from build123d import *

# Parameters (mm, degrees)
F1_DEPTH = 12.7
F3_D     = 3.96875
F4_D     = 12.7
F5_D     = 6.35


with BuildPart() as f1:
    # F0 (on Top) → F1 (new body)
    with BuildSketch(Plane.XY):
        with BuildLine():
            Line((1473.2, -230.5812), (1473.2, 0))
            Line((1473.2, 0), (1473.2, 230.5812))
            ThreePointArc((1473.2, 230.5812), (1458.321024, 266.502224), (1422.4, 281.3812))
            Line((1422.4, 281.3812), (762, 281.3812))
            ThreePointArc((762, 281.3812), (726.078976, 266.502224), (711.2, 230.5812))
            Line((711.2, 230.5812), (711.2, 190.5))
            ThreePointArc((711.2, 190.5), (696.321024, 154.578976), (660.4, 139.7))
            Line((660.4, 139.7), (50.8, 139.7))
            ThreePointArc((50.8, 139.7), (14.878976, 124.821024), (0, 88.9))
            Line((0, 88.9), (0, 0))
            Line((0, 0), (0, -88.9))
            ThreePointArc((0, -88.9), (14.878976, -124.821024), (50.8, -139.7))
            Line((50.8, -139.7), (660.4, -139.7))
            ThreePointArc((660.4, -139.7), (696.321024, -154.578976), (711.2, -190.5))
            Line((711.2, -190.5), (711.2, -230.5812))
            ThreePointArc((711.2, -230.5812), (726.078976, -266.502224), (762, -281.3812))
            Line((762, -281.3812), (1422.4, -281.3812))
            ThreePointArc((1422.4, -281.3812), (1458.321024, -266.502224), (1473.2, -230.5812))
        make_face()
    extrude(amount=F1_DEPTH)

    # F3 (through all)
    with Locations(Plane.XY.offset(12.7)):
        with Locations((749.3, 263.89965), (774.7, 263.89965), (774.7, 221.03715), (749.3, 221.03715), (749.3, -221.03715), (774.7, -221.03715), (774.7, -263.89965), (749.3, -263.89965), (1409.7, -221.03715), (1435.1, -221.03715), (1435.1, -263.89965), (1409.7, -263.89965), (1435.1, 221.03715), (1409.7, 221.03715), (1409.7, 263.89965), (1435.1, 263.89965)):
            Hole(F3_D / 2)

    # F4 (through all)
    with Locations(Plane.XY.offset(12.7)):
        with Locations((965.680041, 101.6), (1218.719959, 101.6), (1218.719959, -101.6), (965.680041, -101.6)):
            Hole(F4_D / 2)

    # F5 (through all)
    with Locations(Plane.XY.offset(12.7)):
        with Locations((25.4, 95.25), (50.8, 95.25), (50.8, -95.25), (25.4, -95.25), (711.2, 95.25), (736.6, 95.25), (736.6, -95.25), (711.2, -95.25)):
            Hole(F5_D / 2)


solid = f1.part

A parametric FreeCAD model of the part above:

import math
import FreeCAD as App
import Part
import Sketcher
Q = App.Units.Quantity

doc = App.newDocument("Part")
body = doc.addObject("PartDesign::Body", "Body")

# Sketch on XY plane
sketch1 = body.newObject("Sketcher::SketchObject", "Sketch")
sketch1.AttachmentSupport = (doc.getObject("XY_Plane"), [""])
sketch1.MapMode = "FlatFace"
sketch1.addGeometry(Part.LineSegment(App.Vector(1473, -231, 0), App.Vector(1473, 231, 0)), False)
sketch1.addGeometry(Part.ArcOfCircle(Part.Circle(App.Vector(1422, 231, 0), App.Vector(0, 0, 1), 51), math.radians(0), math.radians(90)), False)
sketch1.addGeometry(Part.LineSegment(App.Vector(1422, 281, 0), App.Vector(762, 281, 0)), False)
sketch1.addGeometry(Part.ArcOfCircle(Part.Circle(App.Vector(762, 231, 0), App.Vector(0, 0, 1), 51), math.radians(90), math.radians(180)), False)
sketch1.addGeometry(Part.LineSegment(App.Vector(711, 231, 0), App.Vector(711, 190, 0)), False)
sketch1.addGeometry(Part.ArcOfCircle(Part.Circle(App.Vector(660, 191, 0), App.Vector(0, 0, 1), 51), math.radians(-90), math.radians(0)), False)
sketch1.addGeometry(Part.LineSegment(App.Vector(660, 140, 0), App.Vector(51, 140, 0)), False)
sketch1.addGeometry(Part.ArcOfCircle(Part.Circle(App.Vector(51, 89, 0), App.Vector(0, 0, 1), 51), math.radians(90), math.radians(180)), False)
sketch1.addGeometry(Part.LineSegment(App.Vector(0, 89, 0), App.Vector(0, -89, 0)), False)
sketch1.addGeometry(Part.ArcOfCircle(Part.Circle(App.Vector(51, -89, 0), App.Vector(0, 0, 1), 51), math.radians(-180), math.radians(-90)), False)
sketch1.addGeometry(Part.LineSegment(App.Vector(51, -140, 0), App.Vector(660, -140, 0)), False)
sketch1.addGeometry(Part.ArcOfCircle(Part.Circle(App.Vector(660, -191, 0), App.Vector(0, 0, 1), 51), math.radians(0), math.radians(90)), False)
sketch1.addGeometry(Part.LineSegment(App.Vector(711, -190, 0), App.Vector(711, -231, 0)), False)
sketch1.addGeometry(Part.ArcOfCircle(Part.Circle(App.Vector(762, -231, 0), App.Vector(0, 0, 1), 51), math.radians(-180), math.radians(-90)), False)
sketch1.addGeometry(Part.LineSegment(App.Vector(762, -281, 0), App.Vector(1422, -281, 0)), False)
sketch1.addGeometry(Part.ArcOfCircle(Part.Circle(App.Vector(1422, -231, 0), App.Vector(0, 0, 1), 51), math.radians(-90), math.radians(0)), False)
sketch1.addConstraint(Sketcher.Constraint("Tangent", 0, 2, 1, 1))
sketch1.addConstraint(Sketcher.Constraint("Tangent", 1, 2, 2, 1))
sketch1.addConstraint(Sketcher.Constraint("Tangent", 2, 2, 3, 1))
sketch1.addConstraint(Sketcher.Constraint("Tangent", 3, 2, 4, 1))
sketch1.addConstraint(Sketcher.Constraint("Tangent", 4, 2, 5, 2))
sketch1.addConstraint(Sketcher.Constraint("Tangent", 5, 1, 6, 1))
sketch1.addConstraint(Sketcher.Constraint("Tangent", 6, 2, 7, 1))
sketch1.addConstraint(Sketcher.Constraint("Tangent", 7, 2, 8, 1))
sketch1.addConstraint(Sketcher.Constraint("Tangent", 8, 2, 9, 1))
sketch1.addConstraint(Sketcher.Constraint("Tangent", 9, 2, 10, 1))
sketch1.addConstraint(Sketcher.Constraint("Tangent", 10, 2, 11, 2))
sketch1.addConstraint(Sketcher.Constraint("Tangent", 11, 1, 12, 1))
sketch1.addConstraint(Sketcher.Constraint("Tangent", 12, 2, 13, 1))
sketch1.addConstraint(Sketcher.Constraint("Tangent", 13, 2, 14, 1))
sketch1.addConstraint(Sketcher.Constraint("Tangent", 14, 2, 15, 1))
sketch1.addConstraint(Sketcher.Constraint("Tangent", 15, 2, 0, 1))
sketch1.addConstraint(Sketcher.Constraint("Vertical", 0))
sketch1.addConstraint(Sketcher.Constraint("Horizontal", 2))
sketch1.addConstraint(Sketcher.Constraint("Vertical", 4))
sketch1.addConstraint(Sketcher.Constraint("Horizontal", 6))
sketch1.addConstraint(Sketcher.Constraint("Vertical", 8))
sketch1.addConstraint(Sketcher.Constraint("Horizontal", 10))
sketch1.addConstraint(Sketcher.Constraint("Vertical", 12))
sketch1.addConstraint(Sketcher.Constraint("Horizontal", 14))
sketch1.addConstraint(Sketcher.Constraint("Equal", 1, 3))
sketch1.addConstraint(Sketcher.Constraint("Equal", 3, 5))
sketch1.addConstraint(Sketcher.Constraint("Equal", 5, 7))
sketch1.addConstraint(Sketcher.Constraint("Equal", 7, 9))
sketch1.addConstraint(Sketcher.Constraint("Equal", 9, 11))
sketch1.addConstraint(Sketcher.Constraint("Equal", 11, 13))
sketch1.addConstraint(Sketcher.Constraint("Equal", 13, 15))
sketch1.addConstraint(Sketcher.Constraint("Symmetric", 7, 2, 8, 2, -1, 1))
sketch1.addConstraint(Sketcher.Constraint("Symmetric", 3, 3, 13, 3, -1))
sketch1.addConstraint(Sketcher.Constraint("Radius", 1, Q("2.0000001 in")))
sketch1.addConstraint(Sketcher.Constraint("DistanceX", 2, 2, 2, 1, Q("26 in")))
sketch1.addConstraint(Sketcher.Constraint("DistanceX", 6, 2, 6, 1, Q("24 in")))
sketch1.addConstraint(Sketcher.Constraint("DistanceY", 8, 2, 8, 1, Q("7 in")))
sketch1.addConstraint(Sketcher.Constraint("DistanceY", 0, 1, 0, 2, Q("18.156 in")))
pad1 = body.newObject("PartDesign::Pad", "Pad")
pad1.Profile = sketch1
pad1.Length = Q("0.5 in")

# Sketch on XY plane
sketch2 = body.newObject("Sketcher::SketchObject", "Sketch001")
sketch2.AttachmentSupport = (doc.getObject("XY_Plane"), [""])
sketch2.MapMode = "FlatFace"
sketch2.AttachmentOffset = App.Placement(App.Vector(0, 0, 0.5 * 25.4), App.Rotation())
sketch2.addGeometry(Part.Circle(App.Vector(749.3, 263.9, 0), App.Vector(0, 0, 1), 2), False)
sketch2.addGeometry(Part.Circle(App.Vector(774.7, 263.9, 0), App.Vector(0, 0, 1), 2), False)
sketch2.addGeometry(Part.Circle(App.Vector(774.7, 221, 0), App.Vector(0, 0, 1), 2), False)
sketch2.addGeometry(Part.Circle(App.Vector(749.3, 221, 0), App.Vector(0, 0, 1), 2), False)
sketch2.addGeometry(Part.Circle(App.Vector(749.3, -221, 0), App.Vector(0, 0, 1), 2), False)
sketch2.addGeometry(Part.Circle(App.Vector(774.7, -221, 0), App.Vector(0, 0, 1), 2), False)
sketch2.addGeometry(Part.Circle(App.Vector(774.7, -263.9, 0), App.Vector(0, 0, 1), 2), False)
sketch2.addGeometry(Part.Circle(App.Vector(749.3, -263.9, 0), App.Vector(0, 0, 1), 2), False)
sketch2.addGeometry(Part.Circle(App.Vector(1409.7, -221, 0), App.Vector(0, 0, 1), 2), False)
sketch2.addGeometry(Part.Circle(App.Vector(1435.1, -221, 0), App.Vector(0, 0, 1), 2), False)
sketch2.addGeometry(Part.Circle(App.Vector(1435.1, -263.9, 0), App.Vector(0, 0, 1), 2), False)
sketch2.addGeometry(Part.Circle(App.Vector(1409.7, -263.9, 0), App.Vector(0, 0, 1), 2), False)
sketch2.addGeometry(Part.Circle(App.Vector(1435.1, 221, 0), App.Vector(0, 0, 1), 2), False)
sketch2.addGeometry(Part.Circle(App.Vector(1409.7, 221, 0), App.Vector(0, 0, 1), 2), False)
sketch2.addGeometry(Part.Circle(App.Vector(1409.7, 263.9, 0), App.Vector(0, 0, 1), 2), False)
sketch2.addGeometry(Part.Circle(App.Vector(1435.1, 263.9, 0), App.Vector(0, 0, 1), 2), False)
sketch2.addConstraint(Sketcher.Constraint("Equal", 0, 1))
sketch2.addConstraint(Sketcher.Constraint("Equal", 1, 2))
sketch2.addConstraint(Sketcher.Constraint("Equal", 2, 3))
sketch2.addConstraint(Sketcher.Constraint("Equal", 3, 4))
sketch2.addConstraint(Sketcher.Constraint("Equal", 4, 5))
sketch2.addConstraint(Sketcher.Constraint("Equal", 5, 6))
sketch2.addConstraint(Sketcher.Constraint("Equal", 6, 7))
sketch2.addConstraint(Sketcher.Constraint("Equal", 7, 8))
sketch2.addConstraint(Sketcher.Constraint("Equal", 8, 9))
sketch2.addConstraint(Sketcher.Constraint("Equal", 9, 10))
sketch2.addConstraint(Sketcher.Constraint("Equal", 10, 11))
sketch2.addConstraint(Sketcher.Constraint("Equal", 11, 12))
sketch2.addConstraint(Sketcher.Constraint("Equal", 12, 13))
sketch2.addConstraint(Sketcher.Constraint("Equal", 13, 14))
sketch2.addConstraint(Sketcher.Constraint("Equal", 14, 15))
sketch2.addConstraint(Sketcher.Constraint("Symmetric", 3, 3, 4, 3, -1))
sketch2.addConstraint(Sketcher.Constraint("Symmetric", 2, 3, 5, 3, -1))
sketch2.addConstraint(Sketcher.Constraint("Symmetric", 1, 3, 6, 3, -1))
sketch2.addConstraint(Sketcher.Constraint("Symmetric", 0, 3, 7, 3, -1))
sketch2.addConstraint(Sketcher.Constraint("Symmetric", 9, 3, 12, 3, -1))
sketch2.addConstraint(Sketcher.Constraint("Symmetric", 8, 3, 13, 3, -1))
sketch2.addConstraint(Sketcher.Constraint("Symmetric", 11, 3, 14, 3, -1))
sketch2.addConstraint(Sketcher.Constraint("Symmetric", 10, 3, 15, 3, -1))
sketch2.addConstraint(Sketcher.Constraint("Horizontal", 0, 3, 1, 3))
sketch2.addConstraint(Sketcher.Constraint("Horizontal", 2, 3, 3, 3))
sketch2.addConstraint(Sketcher.Constraint("Horizontal", 5, 3, 8, 3))
sketch2.addConstraint(Sketcher.Constraint("Horizontal", 8, 3, 9, 3))
sketch2.addConstraint(Sketcher.Constraint("Horizontal", 7, 3, 10, 3))
sketch2.addConstraint(Sketcher.Constraint("Horizontal", 10, 3, 11, 3))
sketch2.addConstraint(Sketcher.Constraint("Vertical", 1, 3, 2, 3))
sketch2.addConstraint(Sketcher.Constraint("Vertical", 0, 3, 3, 3))
sketch2.addConstraint(Sketcher.Constraint("Vertical", 9, 3, 10, 3))
sketch2.addConstraint(Sketcher.Constraint("Vertical", 8, 3, 11, 3))
sketch2.addConstraint(Sketcher.Constraint("Diameter", 0, Q("0.15625 in")))
sketch2.addConstraint(Sketcher.Constraint("DistanceX", 0, 3, 1, 3, Q("1 in")))
sketch2.addConstraint(Sketcher.Constraint("DistanceX", 5, 3, 8, 3, Q("25 in")))
sketch2.addConstraint(Sketcher.Constraint("DistanceX", 8, 3, 9, 3, Q("1 in")))
sketch2.addConstraint(Sketcher.Constraint("DistanceX", -1, 1, 0, 3, Q("29.5 in")))
sketch2.addConstraint(Sketcher.Constraint("DistanceY", 2, 3, 1, 3, Q("1.6875 in")))
sketch2.addConstraint(Sketcher.Constraint("DistanceY", 4, 3, 0, 3, Q("19.092 in")))
doc.recompute()
hole = body.newObject("PartDesign::Hole", "Hole")
hole.Profile = sketch2
hole.ThreadType = "None"
hole.Diameter = Q("0.15625 in")
hole.DepthType = "ThroughAll"

# Sketch on XY plane
sketch3 = body.newObject("Sketcher::SketchObject", "Sketch002")
sketch3.AttachmentSupport = (doc.getObject("XY_Plane"), [""])
sketch3.MapMode = "FlatFace"
sketch3.AttachmentOffset = App.Placement(App.Vector(0, 0, 0.5 * 25.4), App.Rotation())
sketch3.addGeometry(Part.Circle(App.Vector(966, 102, 0), App.Vector(0, 0, 1), 6), False)
sketch3.addGeometry(Part.Circle(App.Vector(1219, 102, 0), App.Vector(0, 0, 1), 6), False)
sketch3.addGeometry(Part.Circle(App.Vector(1219, -102, 0), App.Vector(0, 0, 1), 6), False)
sketch3.addGeometry(Part.Circle(App.Vector(966, -102, 0), App.Vector(0, 0, 1), 6), False)
sketch3.addConstraint(Sketcher.Constraint("Equal", 0, 1))
sketch3.addConstraint(Sketcher.Constraint("Equal", 1, 2))
sketch3.addConstraint(Sketcher.Constraint("Equal", 2, 3))
sketch3.addConstraint(Sketcher.Constraint("Symmetric", 1, 3, 2, 3, -1))
sketch3.addConstraint(Sketcher.Constraint("Symmetric", 0, 3, 3, 3, -1))
sketch3.addConstraint(Sketcher.Constraint("Horizontal", 0, 3, 1, 3))
sketch3.addConstraint(Sketcher.Constraint("Diameter", 0, Q("0.5 in")))
sketch3.addConstraint(Sketcher.Constraint("DistanceY", -1, 1, 0, 3, Q("4 in")))
sketch3.addConstraint(Sketcher.Constraint("DistanceX", -1, 1, 0, 3, Q("965.680041 mm")))
sketch3.addConstraint(Sketcher.Constraint("DistanceX", -1, 1, 1, 3, Q("1218.719959 mm")))
doc.recompute()
hole2 = body.newObject("PartDesign::Hole", "Hole001")
hole2.Profile = sketch3
hole2.ThreadType = "None"
hole2.Diameter = Q("0.5 in")
hole2.DepthType = "ThroughAll"

# Sketch on XY plane
sketch4 = body.newObject("Sketcher::SketchObject", "Sketch003")
sketch4.AttachmentSupport = (doc.getObject("XY_Plane"), [""])
sketch4.MapMode = "FlatFace"
sketch4.AttachmentOffset = App.Placement(App.Vector(0, 0, 0.5 * 25.4), App.Rotation())
sketch4.addGeometry(Part.Circle(App.Vector(25.4, 95.2, 0), App.Vector(0, 0, 1), 3.2), False)
sketch4.addGeometry(Part.Circle(App.Vector(50.8, 95.2, 0), App.Vector(0, 0, 1), 3.2), False)
sketch4.addGeometry(Part.Circle(App.Vector(50.8, -95.2, 0), App.Vector(0, 0, 1), 3.2), False)
sketch4.addGeometry(Part.Circle(App.Vector(25.4, -95.2, 0), App.Vector(0, 0, 1), 3.2), False)
sketch4.addGeometry(Part.Circle(App.Vector(711.2, 95.2, 0), App.Vector(0, 0, 1), 3.2), False)
sketch4.addGeometry(Part.Circle(App.Vector(736.6, 95.2, 0), App.Vector(0, 0, 1), 3.2), False)
sketch4.addGeometry(Part.Circle(App.Vector(736.6, -95.2, 0), App.Vector(0, 0, 1), 3.2), False)
sketch4.addGeometry(Part.Circle(App.Vector(711.2, -95.2, 0), App.Vector(0, 0, 1), 3.2), False)
sketch4.addConstraint(Sketcher.Constraint("Equal", 0, 1))
sketch4.addConstraint(Sketcher.Constraint("Equal", 1, 2))
sketch4.addConstraint(Sketcher.Constraint("Equal", 2, 3))
sketch4.addConstraint(Sketcher.Constraint("Equal", 3, 4))
sketch4.addConstraint(Sketcher.Constraint("Equal", 4, 5))
sketch4.addConstraint(Sketcher.Constraint("Equal", 5, 6))
sketch4.addConstraint(Sketcher.Constraint("Equal", 6, 7))
sketch4.addConstraint(Sketcher.Constraint("Symmetric", 1, 3, 2, 3, -1))
sketch4.addConstraint(Sketcher.Constraint("Symmetric", 0, 3, 3, 3, -1))
sketch4.addConstraint(Sketcher.Constraint("Symmetric", 5, 3, 6, 3, -1))
sketch4.addConstraint(Sketcher.Constraint("Symmetric", 4, 3, 7, 3, -1))
sketch4.addConstraint(Sketcher.Constraint("Horizontal", 0, 3, 1, 3))
sketch4.addConstraint(Sketcher.Constraint("Horizontal", 1, 3, 4, 3))
sketch4.addConstraint(Sketcher.Constraint("Horizontal", 4, 3, 5, 3))
sketch4.addConstraint(Sketcher.Constraint("Diameter", 0, Q("0.25 in")))
sketch4.addConstraint(Sketcher.Constraint("DistanceX", -1, 1, 0, 3, Q("1 in")))
sketch4.addConstraint(Sketcher.Constraint("DistanceX", -1, 1, 1, 3, Q("2 in")))
sketch4.addConstraint(Sketcher.Constraint("DistanceX", -1, 1, 4, 3, Q("28 in")))
sketch4.addConstraint(Sketcher.Constraint("DistanceX", -1, 1, 5, 3, Q("29 in")))
sketch4.addConstraint(Sketcher.Constraint("DistanceY", 2, 3, 1, 3, Q("7.5 in")))
doc.recompute()
hole3 = body.newObject("PartDesign::Hole", "Hole002")
hole3.Profile = sketch4
hole3.ThreadType = "None"
hole3.Diameter = Q("0.25 in")
hole3.DepthType = "ThroughAll"

doc.recompute()
